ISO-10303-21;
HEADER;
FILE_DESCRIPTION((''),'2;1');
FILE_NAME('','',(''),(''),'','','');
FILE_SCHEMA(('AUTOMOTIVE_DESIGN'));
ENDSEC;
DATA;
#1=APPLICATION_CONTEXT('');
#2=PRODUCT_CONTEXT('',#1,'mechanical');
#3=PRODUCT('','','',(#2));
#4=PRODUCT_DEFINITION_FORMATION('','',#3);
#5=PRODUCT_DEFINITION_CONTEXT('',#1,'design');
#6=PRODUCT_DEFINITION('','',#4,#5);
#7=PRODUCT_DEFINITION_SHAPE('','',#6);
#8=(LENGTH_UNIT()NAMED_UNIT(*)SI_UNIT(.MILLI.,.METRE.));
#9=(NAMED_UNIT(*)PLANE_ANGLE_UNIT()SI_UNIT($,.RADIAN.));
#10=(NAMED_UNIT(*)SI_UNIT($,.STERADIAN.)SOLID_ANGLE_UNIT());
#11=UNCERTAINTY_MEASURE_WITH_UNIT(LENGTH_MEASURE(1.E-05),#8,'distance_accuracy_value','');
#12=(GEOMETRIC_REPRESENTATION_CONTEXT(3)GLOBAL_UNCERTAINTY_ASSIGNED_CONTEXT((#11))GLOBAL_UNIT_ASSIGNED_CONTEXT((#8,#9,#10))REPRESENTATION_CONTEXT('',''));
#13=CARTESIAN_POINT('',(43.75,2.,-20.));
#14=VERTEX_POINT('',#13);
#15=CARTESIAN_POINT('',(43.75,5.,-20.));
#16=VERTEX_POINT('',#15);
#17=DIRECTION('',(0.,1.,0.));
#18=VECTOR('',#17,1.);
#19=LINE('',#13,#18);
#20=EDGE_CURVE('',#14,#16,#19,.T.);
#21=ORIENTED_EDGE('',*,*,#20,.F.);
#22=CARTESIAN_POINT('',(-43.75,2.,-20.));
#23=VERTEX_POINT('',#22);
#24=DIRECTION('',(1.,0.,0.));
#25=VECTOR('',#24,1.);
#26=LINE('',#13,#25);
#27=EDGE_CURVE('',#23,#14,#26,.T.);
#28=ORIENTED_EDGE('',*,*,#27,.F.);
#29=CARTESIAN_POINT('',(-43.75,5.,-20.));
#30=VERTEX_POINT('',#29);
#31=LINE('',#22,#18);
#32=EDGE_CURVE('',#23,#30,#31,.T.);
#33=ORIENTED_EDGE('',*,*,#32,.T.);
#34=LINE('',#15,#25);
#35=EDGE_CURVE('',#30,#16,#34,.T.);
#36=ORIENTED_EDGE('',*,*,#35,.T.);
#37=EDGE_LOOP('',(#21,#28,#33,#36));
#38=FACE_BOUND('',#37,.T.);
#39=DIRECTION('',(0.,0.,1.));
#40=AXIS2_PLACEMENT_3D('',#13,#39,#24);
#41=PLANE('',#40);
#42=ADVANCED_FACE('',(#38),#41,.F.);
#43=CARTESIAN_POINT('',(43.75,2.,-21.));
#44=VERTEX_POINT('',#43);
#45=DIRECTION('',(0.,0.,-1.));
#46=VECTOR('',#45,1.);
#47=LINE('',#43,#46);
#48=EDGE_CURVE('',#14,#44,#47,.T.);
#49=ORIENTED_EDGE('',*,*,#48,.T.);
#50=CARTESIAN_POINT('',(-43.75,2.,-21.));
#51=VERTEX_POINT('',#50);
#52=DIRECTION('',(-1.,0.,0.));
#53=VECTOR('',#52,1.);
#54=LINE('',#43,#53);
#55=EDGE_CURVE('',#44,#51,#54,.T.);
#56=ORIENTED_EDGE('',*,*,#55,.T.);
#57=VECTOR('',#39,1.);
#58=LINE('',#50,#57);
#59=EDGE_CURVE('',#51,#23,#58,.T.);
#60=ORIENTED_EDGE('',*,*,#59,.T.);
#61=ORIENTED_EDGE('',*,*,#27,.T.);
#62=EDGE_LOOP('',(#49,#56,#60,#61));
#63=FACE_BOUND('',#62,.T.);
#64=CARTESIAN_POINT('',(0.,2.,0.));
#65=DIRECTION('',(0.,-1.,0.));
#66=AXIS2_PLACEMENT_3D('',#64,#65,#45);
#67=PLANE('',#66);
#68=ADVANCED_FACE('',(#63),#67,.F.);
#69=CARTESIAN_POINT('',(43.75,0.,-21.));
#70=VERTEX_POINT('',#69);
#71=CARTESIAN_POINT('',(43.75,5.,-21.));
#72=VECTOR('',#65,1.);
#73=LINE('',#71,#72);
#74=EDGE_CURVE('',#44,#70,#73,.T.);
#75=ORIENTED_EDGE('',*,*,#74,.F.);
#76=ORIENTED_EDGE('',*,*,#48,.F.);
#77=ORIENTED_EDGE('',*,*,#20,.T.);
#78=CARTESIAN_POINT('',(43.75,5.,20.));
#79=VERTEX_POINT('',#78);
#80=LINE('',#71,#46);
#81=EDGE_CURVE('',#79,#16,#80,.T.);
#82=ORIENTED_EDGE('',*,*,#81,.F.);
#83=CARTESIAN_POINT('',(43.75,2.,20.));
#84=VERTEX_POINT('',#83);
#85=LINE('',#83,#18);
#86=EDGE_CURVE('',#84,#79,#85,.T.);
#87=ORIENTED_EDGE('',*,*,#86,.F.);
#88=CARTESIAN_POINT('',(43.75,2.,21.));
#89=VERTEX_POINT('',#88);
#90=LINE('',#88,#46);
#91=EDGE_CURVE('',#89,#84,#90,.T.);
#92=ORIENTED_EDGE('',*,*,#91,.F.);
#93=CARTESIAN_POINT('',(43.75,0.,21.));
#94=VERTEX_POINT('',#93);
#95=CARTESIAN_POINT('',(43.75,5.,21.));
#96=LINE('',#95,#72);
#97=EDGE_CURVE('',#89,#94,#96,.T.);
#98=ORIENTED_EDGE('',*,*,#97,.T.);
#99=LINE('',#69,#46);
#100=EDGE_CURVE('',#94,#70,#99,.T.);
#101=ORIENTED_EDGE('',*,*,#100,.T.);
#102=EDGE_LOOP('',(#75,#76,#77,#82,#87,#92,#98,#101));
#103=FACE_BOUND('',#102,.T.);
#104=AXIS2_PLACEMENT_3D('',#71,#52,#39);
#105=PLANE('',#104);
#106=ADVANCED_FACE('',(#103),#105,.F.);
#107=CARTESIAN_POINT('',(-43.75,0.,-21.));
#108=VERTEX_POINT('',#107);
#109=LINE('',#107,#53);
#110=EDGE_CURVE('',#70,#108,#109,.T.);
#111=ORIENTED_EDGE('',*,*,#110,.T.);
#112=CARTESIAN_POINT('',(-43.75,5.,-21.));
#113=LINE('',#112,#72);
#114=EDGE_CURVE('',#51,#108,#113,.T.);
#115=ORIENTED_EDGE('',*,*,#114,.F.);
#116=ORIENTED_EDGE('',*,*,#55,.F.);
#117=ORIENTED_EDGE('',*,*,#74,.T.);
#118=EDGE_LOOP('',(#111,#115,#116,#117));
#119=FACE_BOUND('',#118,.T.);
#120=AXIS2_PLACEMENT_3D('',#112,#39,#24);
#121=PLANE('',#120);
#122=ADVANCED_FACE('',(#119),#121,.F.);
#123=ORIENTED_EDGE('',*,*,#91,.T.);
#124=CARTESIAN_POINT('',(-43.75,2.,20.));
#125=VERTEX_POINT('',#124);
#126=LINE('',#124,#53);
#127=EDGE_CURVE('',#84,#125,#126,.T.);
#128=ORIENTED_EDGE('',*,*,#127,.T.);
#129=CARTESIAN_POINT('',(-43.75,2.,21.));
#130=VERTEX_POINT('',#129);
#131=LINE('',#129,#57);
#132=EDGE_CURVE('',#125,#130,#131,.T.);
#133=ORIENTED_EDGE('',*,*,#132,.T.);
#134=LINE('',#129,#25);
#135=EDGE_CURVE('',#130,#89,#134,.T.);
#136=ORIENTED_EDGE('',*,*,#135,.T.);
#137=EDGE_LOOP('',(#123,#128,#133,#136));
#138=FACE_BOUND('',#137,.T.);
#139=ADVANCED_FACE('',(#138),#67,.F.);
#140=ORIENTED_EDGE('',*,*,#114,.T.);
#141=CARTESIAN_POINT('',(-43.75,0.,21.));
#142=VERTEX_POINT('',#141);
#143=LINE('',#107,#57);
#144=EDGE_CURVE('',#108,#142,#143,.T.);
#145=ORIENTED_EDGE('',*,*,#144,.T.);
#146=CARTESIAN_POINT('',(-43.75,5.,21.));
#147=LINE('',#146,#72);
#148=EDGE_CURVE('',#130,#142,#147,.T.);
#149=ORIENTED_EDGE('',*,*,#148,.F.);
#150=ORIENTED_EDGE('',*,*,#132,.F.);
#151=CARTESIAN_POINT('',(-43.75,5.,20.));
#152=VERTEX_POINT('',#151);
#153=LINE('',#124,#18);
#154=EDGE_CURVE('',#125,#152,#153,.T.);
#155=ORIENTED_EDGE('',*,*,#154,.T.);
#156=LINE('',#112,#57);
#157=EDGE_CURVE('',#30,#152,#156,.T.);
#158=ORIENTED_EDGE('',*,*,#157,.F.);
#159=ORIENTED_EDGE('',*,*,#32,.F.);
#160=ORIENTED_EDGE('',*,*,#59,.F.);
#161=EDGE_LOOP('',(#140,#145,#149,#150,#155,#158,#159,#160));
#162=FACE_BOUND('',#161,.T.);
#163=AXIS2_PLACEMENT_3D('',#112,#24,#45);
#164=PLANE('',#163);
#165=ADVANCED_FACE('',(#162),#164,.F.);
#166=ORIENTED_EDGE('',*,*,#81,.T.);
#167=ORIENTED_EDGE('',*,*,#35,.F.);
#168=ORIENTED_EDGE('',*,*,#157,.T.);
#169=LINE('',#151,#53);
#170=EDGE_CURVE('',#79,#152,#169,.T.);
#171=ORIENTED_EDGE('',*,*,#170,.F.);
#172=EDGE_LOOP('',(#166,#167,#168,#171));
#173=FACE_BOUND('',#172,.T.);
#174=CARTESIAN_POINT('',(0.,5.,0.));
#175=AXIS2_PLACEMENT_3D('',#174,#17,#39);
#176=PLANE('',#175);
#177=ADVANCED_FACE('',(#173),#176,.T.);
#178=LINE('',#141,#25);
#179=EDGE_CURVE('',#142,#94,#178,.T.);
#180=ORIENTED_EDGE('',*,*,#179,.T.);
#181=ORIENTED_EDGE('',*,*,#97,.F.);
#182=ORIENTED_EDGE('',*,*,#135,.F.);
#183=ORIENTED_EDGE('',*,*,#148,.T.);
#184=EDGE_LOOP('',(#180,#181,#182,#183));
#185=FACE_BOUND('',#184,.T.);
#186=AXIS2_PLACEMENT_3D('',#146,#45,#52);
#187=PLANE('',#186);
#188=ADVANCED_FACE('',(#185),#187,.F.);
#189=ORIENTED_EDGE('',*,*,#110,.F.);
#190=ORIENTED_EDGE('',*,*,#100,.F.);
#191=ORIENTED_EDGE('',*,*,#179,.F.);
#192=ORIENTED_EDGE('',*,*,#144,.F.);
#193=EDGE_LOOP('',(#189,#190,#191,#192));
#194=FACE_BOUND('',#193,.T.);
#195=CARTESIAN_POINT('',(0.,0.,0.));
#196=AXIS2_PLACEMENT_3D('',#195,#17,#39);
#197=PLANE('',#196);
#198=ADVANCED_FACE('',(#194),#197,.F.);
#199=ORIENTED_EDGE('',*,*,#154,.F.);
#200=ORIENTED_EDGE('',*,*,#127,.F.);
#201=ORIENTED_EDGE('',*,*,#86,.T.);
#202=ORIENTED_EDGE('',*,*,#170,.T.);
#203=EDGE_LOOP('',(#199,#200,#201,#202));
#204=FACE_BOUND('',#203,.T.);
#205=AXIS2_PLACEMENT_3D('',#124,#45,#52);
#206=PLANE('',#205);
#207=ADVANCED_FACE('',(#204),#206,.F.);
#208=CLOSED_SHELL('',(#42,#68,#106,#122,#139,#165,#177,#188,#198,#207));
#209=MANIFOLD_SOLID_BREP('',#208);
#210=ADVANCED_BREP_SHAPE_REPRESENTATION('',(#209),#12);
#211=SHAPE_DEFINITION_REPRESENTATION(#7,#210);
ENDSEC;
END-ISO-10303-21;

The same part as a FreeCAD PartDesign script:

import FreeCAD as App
import Part
import Sketcher

doc = App.newDocument("Part")
body = doc.addObject("PartDesign::Body", "Body")

# Sketch on XZ plane
sketch1 = doc.addObject("Sketcher::SketchObject", "Sketch")
body.addObject(sketch1)
sketch1.AttachmentSupport = (doc.XZ_Plane, [""])
sketch1.MapMode = "FlatFace"
sketch1.addGeometry([
    Part.LineSegment(App.Vector(-44, -21, 0), App.Vector(-44, 21, 0)),
    Part.LineSegment(App.Vector(-44, 21, 0), App.Vector(44, 21, 0)),
    Part.LineSegment(App.Vector(44, 21, 0), App.Vector(44, -21, 0)),
    Part.LineSegment(App.Vector(44, -21, 0), App.Vector(-44, -21, 0)),
], False)
sketch1.addConstraint([
    Sketcher.Constraint("Coincident", 0, 2, 1, 1),
    Sketcher.Constraint("Coincident", 1, 2, 2, 1),
    Sketcher.Constraint("Coincident", 2, 2, 3, 1),
    Sketcher.Constraint("Coincident", 3, 2, 0, 1),
    Sketcher.Constraint("Vertical", 0),
    Sketcher.Constraint("Horizontal", 1),
    Sketcher.Constraint("Vertical", 2),
    Sketcher.Constraint("Horizontal", 3),
    Sketcher.Constraint("Symmetric", 0, 2, 2, 2, -1, 1),
    Sketcher.Constraint("DistanceY", 0, 1, 0, 2, 42.0),
    Sketcher.Constraint("DistanceX", 1, 1, 1, 2, 87.5),
])
pad1 = doc.addObject("PartDesign::Pad", "Pad")
body.addObject(pad1)
pad1.Profile = sketch1
pad1.Length = 5
pad1.Reversed = True

# Sketch on XZ plane
sketch2 = doc.addObject("Sketcher::SketchObject", "Sketch001")
body.addObject(sketch2)
sketch2.AttachmentSupport = (doc.XZ_Plane, [""])
sketch2.MapMode = "FlatFace"
sketch2.AttachmentOffset = App.Placement(App.Vector(0, 0, -5), App.Rotation())
sketch2.addGeometry([
    Part.LineSegment(App.Vector(-43.8, -21, 0), App.Vector(-43.8, -20, 0)),
    Part.LineSegment(App.Vector(-43.8, -20, 0), App.Vector(43.8, -20, 0)),
    Part.LineSegment(App.Vector(43.8, -20, 0), App.Vector(43.8, -21, 0)),
    Part.LineSegment(App.Vector(43.8, -21, 0), App.Vector(-43.8, -21, 0)),
], False)
sketch2.addConstraint([
    Sketcher.Constraint("Coincident", 0, 2, 1, 1),
    Sketcher.Constraint("Coincident", 1, 2, 2, 1),
    Sketcher.Constraint("Coincident", 2, 2, 3, 1),
    Sketcher.Constraint("Coincident", 3, 2, 0, 1),
    Sketcher.Constraint("Vertical", 0),
    Sketcher.Constraint("Horizontal", 1),
    Sketcher.Constraint("Vertical", 2),
    Sketcher.Constraint("Horizontal", 3),
    Sketcher.Constraint("DistanceY", 0, 1, 0, 2, 1.0),
    Sketcher.Constraint("DistanceX", 1, 1, 1, 2, 87.5),
    Sketcher.Constraint("DistanceY", 0, 2, -1, 1, 20.0),
    Sketcher.Constraint("DistanceX", 0, 2, -1, 1, 43.75),
])
pocket1 = doc.addObject("PartDesign::Pocket", "Pocket")
body.addObject(pocket1)
pocket1.Profile = sketch2
pocket1.Length = 3
pocket1.Reversed = True

# Sketch on XZ plane
sketch3 = doc.addObject("Sketcher::SketchObject", "Sketch002")
body.addObject(sketch3)
sketch3.AttachmentSupport = (doc.XZ_Plane, [""])
sketch3.MapMode = "FlatFace"
sketch3.AttachmentOffset = App.Placement(App.Vector(0, 0, -5), App.Rotation())
sketch3.addGeometry([
    Part.LineSegment(App.Vector(-43.8, 20, 0), App.Vector(-43.8, 21, 0)),
    Part.LineSegment(App.Vector(-43.8, 21, 0), App.Vector(43.8, 21, 0)),
    Part.LineSegment(App.Vector(43.8, 21, 0), App.Vector(43.8, 20, 0)),
    Part.LineSegment(App.Vector(43.8, 20, 0), App.Vector(-43.8, 20, 0)),
], False)
sketch3.addConstraint([
    Sketcher.Constraint("Coincident", 0, 2, 1, 1),
    Sketcher.Constraint("Coincident", 1, 2, 2, 1),
    Sketcher.Constraint("Coincident", 2, 2, 3, 1),
    Sketcher.Constraint("Coincident", 3, 2, 0, 1),
    Sketcher.Constraint("Vertical", 0),
    Sketcher.Constraint("Horizontal", 1),
    Sketcher.Constraint("Vertical", 2),
    Sketcher.Constraint("Horizontal", 3),
    Sketcher.Constraint("DistanceY", 0, 1, 0, 2, 1.0),
    Sketcher.Constraint("DistanceX", 1, 1, 1, 2, 87.5),
    Sketcher.Constraint("DistanceY", -1, 1, 0, 2, 21.0),
    Sketcher.Constraint("DistanceX", 0, 2, -1, 1, 43.75),
])
pocket2 = doc.addObject("PartDesign::Pocket", "Pocket001")
body.addObject(pocket2)
pocket2.Profile = sketch3
pocket2.Length = 3
pocket2.Reversed = True

doc.recompute()
